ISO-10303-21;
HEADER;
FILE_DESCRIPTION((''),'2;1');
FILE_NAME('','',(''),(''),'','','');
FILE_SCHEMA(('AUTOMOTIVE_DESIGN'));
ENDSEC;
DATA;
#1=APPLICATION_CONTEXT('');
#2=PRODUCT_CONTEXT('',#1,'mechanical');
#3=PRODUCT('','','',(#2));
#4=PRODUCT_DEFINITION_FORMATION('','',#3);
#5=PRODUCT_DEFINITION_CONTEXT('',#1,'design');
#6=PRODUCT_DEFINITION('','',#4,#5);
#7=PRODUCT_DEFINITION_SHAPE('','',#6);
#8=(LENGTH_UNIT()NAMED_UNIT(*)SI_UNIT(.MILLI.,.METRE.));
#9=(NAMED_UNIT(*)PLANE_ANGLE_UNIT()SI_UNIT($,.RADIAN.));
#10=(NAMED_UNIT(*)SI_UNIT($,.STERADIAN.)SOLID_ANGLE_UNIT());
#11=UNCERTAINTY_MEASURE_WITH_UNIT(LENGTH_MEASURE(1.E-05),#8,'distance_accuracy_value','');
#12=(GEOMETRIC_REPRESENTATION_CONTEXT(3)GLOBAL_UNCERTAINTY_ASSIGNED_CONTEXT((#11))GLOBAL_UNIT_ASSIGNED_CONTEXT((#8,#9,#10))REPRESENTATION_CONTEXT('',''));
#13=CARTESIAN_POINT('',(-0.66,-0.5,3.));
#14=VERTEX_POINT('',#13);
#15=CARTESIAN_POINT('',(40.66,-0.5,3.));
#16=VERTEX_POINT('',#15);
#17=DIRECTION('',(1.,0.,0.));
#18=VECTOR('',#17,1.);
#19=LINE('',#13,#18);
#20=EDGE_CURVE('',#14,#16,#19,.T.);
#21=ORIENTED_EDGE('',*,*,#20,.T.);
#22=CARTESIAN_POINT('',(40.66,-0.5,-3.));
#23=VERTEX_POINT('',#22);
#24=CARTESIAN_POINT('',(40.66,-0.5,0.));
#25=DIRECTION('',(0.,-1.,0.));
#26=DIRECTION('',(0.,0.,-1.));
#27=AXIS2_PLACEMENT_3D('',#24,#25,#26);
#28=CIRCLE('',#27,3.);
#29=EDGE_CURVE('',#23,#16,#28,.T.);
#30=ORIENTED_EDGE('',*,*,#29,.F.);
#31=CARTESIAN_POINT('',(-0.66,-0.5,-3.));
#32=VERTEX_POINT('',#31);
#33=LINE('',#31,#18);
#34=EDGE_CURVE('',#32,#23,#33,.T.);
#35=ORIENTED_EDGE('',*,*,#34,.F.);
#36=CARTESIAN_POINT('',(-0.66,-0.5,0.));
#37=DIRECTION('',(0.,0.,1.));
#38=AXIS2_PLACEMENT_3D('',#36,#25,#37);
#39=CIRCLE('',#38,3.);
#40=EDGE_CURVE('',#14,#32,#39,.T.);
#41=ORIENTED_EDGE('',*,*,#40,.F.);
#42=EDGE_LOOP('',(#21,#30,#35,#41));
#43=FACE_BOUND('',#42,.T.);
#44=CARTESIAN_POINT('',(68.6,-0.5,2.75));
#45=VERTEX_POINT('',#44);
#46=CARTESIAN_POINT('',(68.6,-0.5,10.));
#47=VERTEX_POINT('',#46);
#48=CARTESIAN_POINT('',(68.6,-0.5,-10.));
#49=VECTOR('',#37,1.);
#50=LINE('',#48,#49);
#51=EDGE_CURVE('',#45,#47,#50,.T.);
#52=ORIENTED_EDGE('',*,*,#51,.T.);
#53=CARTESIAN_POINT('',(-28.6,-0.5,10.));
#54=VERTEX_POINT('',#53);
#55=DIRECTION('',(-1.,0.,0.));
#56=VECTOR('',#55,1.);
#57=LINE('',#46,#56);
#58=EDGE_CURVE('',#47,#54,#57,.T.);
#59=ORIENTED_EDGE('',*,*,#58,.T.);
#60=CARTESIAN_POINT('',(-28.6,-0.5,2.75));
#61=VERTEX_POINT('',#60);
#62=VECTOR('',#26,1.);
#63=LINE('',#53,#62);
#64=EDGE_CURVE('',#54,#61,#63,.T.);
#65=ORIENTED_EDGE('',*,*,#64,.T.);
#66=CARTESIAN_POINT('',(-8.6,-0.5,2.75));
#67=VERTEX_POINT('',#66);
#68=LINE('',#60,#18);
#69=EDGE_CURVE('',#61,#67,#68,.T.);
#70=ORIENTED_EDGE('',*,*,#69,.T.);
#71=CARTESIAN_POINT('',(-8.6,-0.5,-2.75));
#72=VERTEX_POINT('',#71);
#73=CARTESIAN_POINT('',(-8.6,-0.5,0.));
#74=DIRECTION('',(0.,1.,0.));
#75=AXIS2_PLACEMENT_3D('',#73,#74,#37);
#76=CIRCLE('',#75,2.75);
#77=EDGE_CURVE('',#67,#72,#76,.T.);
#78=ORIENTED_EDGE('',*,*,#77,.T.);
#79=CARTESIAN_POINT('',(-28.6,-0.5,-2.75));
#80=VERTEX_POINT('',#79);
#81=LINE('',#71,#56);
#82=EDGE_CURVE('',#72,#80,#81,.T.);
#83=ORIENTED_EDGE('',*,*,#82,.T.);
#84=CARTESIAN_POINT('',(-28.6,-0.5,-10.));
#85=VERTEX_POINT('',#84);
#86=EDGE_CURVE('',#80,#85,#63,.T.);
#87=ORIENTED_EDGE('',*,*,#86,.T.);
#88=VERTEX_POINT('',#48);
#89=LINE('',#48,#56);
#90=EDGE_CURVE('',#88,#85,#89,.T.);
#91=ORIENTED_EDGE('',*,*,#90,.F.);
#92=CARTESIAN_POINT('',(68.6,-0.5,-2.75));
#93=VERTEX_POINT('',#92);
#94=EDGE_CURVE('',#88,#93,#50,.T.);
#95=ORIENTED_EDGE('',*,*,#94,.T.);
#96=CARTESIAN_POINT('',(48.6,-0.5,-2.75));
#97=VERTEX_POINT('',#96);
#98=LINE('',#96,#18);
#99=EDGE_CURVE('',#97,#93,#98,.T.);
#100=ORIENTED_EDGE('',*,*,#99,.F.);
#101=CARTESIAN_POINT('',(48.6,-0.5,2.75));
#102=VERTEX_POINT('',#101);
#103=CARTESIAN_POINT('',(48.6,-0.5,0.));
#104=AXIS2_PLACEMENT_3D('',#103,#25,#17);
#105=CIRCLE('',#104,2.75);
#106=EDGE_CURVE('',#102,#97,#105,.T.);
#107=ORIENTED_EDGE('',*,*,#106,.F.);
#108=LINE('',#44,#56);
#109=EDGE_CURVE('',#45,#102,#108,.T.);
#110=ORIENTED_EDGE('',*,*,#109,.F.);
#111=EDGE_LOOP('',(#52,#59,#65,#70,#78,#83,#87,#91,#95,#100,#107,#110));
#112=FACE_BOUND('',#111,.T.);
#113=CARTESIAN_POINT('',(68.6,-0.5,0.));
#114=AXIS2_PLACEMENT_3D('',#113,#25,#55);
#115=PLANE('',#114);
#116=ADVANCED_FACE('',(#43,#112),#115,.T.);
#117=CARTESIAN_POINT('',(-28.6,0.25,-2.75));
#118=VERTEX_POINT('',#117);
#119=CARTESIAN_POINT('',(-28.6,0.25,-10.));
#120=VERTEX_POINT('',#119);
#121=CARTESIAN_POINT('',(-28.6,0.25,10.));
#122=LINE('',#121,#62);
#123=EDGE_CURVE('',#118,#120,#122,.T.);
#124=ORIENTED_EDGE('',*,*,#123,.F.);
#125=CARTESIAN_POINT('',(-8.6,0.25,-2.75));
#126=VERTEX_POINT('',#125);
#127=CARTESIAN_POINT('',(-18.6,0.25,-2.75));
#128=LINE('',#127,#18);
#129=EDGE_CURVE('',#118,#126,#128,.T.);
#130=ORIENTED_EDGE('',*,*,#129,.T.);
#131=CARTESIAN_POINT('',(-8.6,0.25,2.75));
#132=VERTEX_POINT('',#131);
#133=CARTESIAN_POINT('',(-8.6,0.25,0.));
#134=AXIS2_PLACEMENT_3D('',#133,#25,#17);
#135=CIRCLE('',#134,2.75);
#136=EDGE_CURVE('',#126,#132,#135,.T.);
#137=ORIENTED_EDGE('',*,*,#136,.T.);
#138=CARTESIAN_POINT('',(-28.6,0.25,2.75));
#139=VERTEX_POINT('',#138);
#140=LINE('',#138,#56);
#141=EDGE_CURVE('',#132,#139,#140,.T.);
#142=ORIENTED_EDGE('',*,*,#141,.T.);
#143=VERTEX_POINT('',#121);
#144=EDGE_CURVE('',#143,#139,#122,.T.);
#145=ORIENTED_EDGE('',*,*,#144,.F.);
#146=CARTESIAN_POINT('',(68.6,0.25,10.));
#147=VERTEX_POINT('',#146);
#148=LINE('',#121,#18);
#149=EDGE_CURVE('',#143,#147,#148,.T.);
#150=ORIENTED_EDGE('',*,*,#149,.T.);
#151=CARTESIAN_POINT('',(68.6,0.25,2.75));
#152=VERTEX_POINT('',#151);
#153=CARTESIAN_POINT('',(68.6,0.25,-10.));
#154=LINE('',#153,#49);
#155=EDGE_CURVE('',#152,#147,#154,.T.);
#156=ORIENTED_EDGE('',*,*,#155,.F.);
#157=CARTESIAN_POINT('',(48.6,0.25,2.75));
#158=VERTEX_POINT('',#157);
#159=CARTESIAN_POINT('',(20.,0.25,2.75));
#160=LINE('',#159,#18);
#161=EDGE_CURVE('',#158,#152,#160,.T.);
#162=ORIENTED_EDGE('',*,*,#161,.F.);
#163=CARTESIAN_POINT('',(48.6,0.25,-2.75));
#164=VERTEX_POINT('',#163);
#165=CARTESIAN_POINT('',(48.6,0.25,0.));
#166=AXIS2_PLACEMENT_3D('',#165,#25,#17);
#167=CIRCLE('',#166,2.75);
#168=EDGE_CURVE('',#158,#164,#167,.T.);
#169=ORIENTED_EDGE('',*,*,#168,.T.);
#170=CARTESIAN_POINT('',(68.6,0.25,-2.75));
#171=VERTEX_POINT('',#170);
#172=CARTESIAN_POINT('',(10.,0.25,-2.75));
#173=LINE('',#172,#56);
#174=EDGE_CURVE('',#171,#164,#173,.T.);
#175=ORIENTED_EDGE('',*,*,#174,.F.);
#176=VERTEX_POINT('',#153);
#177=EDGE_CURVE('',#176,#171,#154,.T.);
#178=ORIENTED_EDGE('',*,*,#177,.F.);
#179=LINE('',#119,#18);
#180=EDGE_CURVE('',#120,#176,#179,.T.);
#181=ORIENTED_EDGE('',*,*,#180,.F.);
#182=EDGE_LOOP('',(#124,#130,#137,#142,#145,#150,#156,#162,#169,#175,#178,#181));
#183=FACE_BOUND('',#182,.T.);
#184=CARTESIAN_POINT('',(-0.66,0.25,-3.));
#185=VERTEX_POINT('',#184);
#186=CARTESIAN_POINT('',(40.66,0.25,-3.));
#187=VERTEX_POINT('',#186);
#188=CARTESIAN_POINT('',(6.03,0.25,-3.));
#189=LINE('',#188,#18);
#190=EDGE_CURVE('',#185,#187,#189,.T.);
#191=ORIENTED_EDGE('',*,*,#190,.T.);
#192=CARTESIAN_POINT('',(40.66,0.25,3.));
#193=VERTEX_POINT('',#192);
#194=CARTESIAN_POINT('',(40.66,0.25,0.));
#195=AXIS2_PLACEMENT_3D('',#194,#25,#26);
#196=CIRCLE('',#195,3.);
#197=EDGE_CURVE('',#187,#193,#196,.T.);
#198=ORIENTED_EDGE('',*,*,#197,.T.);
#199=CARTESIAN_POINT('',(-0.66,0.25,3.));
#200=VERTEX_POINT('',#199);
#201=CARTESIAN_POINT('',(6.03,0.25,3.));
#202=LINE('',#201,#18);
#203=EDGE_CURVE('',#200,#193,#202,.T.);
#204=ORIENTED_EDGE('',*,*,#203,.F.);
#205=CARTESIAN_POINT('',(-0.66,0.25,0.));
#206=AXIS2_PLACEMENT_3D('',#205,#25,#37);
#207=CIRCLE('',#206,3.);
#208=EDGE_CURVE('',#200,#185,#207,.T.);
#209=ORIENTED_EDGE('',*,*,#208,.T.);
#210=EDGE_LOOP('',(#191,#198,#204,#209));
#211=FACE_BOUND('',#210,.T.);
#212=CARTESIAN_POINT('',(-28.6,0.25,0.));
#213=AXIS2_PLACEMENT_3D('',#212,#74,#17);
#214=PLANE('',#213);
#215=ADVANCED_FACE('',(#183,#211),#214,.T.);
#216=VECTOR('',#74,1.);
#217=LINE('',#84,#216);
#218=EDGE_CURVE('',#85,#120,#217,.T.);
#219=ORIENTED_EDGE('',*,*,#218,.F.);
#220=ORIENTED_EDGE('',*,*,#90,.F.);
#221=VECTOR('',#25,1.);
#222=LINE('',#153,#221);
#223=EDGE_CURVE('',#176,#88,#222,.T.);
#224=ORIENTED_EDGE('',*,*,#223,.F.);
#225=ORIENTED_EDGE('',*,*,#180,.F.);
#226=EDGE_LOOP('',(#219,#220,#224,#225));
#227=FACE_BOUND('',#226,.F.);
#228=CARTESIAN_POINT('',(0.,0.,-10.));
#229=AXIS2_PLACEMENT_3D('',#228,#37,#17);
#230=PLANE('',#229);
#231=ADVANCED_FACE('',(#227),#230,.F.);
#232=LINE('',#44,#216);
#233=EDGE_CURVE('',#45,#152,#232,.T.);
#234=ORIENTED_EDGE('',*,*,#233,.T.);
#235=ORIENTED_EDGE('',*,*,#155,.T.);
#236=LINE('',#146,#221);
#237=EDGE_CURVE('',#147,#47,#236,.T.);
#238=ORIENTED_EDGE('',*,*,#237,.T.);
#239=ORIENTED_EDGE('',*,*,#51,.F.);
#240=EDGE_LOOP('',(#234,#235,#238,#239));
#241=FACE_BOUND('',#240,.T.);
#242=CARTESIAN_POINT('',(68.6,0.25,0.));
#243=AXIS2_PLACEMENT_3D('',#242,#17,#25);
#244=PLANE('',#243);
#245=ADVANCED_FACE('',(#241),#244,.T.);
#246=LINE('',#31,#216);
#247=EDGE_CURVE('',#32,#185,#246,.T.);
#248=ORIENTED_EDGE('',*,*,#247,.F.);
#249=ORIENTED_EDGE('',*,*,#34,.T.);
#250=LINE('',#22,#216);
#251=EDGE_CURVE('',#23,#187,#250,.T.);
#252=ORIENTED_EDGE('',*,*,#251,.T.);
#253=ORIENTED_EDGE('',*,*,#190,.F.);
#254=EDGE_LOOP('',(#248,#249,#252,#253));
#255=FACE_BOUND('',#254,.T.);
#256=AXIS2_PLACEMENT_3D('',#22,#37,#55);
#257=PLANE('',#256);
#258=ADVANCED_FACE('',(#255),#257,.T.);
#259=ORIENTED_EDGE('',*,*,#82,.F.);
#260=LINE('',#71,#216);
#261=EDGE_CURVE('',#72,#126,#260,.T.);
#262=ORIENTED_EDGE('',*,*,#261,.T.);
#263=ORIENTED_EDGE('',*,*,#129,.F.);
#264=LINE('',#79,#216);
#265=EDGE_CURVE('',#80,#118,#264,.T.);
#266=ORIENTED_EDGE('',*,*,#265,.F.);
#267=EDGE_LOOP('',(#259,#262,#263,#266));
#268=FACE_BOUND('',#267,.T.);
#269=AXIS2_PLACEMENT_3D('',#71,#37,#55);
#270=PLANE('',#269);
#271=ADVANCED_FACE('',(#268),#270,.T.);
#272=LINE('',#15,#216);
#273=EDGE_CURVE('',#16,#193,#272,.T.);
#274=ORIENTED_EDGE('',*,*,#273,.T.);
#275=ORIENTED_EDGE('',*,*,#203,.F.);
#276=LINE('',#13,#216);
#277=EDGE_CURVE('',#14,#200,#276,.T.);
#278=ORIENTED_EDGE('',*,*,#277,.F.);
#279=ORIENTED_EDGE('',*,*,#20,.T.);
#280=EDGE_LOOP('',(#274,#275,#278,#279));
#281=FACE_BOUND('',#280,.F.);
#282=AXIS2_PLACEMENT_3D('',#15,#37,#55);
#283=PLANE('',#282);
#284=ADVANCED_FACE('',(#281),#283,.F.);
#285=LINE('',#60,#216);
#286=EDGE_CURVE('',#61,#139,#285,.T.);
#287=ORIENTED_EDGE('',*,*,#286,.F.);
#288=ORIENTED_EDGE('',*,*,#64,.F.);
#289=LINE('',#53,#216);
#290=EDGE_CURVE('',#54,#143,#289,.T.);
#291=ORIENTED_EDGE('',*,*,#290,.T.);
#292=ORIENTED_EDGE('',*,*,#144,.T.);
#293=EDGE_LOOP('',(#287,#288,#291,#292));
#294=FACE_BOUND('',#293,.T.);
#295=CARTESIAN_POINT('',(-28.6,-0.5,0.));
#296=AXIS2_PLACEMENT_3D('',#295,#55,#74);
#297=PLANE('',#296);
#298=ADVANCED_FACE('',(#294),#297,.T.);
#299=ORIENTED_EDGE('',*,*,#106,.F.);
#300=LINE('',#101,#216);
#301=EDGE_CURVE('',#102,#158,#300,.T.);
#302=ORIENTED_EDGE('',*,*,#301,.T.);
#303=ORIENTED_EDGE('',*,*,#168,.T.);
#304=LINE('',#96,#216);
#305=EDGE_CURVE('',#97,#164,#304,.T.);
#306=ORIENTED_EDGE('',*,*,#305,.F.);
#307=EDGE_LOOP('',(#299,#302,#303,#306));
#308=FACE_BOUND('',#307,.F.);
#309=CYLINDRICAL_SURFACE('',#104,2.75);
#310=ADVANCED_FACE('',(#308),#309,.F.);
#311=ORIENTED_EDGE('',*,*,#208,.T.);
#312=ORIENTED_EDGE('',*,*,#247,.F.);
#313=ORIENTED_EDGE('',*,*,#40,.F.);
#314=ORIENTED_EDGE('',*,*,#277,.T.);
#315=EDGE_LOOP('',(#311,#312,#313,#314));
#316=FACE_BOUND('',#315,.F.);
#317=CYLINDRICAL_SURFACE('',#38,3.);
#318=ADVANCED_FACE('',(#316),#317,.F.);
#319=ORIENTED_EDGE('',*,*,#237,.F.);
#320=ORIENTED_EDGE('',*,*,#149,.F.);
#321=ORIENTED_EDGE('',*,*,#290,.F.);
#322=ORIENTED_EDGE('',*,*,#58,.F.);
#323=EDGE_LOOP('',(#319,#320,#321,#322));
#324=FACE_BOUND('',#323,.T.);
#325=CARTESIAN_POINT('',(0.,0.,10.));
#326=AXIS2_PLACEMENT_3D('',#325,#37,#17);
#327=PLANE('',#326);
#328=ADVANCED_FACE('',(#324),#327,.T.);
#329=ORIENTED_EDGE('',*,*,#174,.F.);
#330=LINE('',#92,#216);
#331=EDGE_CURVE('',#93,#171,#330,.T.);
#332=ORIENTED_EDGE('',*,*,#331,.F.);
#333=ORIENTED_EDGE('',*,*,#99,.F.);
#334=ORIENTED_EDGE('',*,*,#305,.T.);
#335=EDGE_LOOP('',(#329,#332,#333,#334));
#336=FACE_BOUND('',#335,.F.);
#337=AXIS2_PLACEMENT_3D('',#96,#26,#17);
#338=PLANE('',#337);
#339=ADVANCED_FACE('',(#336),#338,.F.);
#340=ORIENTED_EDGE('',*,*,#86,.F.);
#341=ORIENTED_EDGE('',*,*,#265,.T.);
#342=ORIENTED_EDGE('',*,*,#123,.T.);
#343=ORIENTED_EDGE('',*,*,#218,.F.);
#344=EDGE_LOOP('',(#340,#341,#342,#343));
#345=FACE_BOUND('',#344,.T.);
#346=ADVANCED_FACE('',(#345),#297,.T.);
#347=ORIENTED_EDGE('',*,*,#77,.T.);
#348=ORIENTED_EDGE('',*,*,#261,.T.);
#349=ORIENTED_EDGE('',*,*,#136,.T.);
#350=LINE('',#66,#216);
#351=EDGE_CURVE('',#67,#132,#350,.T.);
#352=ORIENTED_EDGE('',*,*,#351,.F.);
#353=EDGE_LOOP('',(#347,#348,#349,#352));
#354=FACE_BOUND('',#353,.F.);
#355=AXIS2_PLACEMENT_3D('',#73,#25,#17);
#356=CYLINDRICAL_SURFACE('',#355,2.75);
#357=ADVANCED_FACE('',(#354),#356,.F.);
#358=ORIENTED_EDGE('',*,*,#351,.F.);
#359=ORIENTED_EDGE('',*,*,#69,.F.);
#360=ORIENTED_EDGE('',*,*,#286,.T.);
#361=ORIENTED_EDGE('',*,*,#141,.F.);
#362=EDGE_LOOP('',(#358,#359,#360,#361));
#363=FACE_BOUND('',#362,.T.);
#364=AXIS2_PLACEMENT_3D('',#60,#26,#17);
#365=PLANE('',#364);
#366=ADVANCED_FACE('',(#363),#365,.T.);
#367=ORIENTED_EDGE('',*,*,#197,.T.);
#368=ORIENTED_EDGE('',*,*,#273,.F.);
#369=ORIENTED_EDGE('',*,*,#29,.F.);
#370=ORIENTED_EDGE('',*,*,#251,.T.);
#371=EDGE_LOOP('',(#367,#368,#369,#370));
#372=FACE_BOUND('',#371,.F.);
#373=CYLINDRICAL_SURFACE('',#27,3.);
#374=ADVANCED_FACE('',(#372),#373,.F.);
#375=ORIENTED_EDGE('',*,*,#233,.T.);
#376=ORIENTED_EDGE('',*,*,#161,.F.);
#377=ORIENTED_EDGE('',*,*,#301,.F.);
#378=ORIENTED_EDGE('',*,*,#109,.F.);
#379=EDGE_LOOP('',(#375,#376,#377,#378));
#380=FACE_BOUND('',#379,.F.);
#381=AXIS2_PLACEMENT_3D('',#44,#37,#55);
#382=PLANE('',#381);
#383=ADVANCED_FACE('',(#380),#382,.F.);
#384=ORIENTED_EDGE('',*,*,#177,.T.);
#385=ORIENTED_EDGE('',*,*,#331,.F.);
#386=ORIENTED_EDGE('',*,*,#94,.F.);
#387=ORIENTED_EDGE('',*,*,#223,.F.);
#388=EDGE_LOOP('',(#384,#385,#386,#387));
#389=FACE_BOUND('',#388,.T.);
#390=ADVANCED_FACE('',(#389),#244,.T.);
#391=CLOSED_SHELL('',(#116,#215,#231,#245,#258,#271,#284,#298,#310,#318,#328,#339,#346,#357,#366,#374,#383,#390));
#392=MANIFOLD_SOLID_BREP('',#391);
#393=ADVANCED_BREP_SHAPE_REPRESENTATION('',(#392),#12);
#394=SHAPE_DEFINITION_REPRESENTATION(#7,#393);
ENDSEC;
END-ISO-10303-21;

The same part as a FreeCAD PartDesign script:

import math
import FreeCAD as App
import Part
import Sketcher

V = App.Vector
Q = App.Units.Quantity

doc = App.newDocument("Part")
body = doc.addObject("PartDesign::Body", "Body")

# Sketch on XY plane
sketch1 = doc.addObject("Sketcher::SketchObject", "Sketch")
body.addObject(sketch1)
sketch1.AttachmentSupport = (doc.XY_Plane, [""])
sketch1.MapMode = "FlatFace"
sketch1.addGeometry(Part.LineSegment(V(-28.6, -0.5, 0), V(68.6, -0.5, 0)), False)
sketch1.addGeometry(Part.LineSegment(V(68.6, -0.5, 0), V(68.6, 0.2, 0)), False)
sketch1.addGeometry(Part.LineSegment(V(68.6, 0.2, 0), V(-28.6, 0.2, 0)), False)
sketch1.addGeometry(Part.LineSegment(V(-28.6, 0.2, 0), V(-28.6, -0.5, 0)), False)
sketch1.addConstraint(Sketcher.Constraint("Coincident", 0, 2, 1, 1))
sketch1.addConstraint(Sketcher.Constraint("Coincident", 1, 2, 2, 1))
sketch1.addConstraint(Sketcher.Constraint("Coincident", 2, 2, 3, 1))
sketch1.addConstraint(Sketcher.Constraint("Coincident", 3, 2, 0, 1))
sketch1.addConstraint(Sketcher.Constraint("Horizontal", 0))
sketch1.addConstraint(Sketcher.Constraint("Vertical", 1))
sketch1.addConstraint(Sketcher.Constraint("Horizontal", 2))
sketch1.addConstraint(Sketcher.Constraint("Vertical", 3))
sketch1.addConstraint(Sketcher.Constraint("DistanceX", 0, 1, 0, 2, Q("97.2 mm")))
sketch1.addConstraint(Sketcher.Constraint("DistanceY", 1, 1, 1, 2, Q("0.75 mm")))
sketch1.addConstraint(Sketcher.Constraint("DistanceX", -1, 1, 0, 2, Q("68.6 mm")))
sketch1.addConstraint(Sketcher.Constraint("DistanceY", 0, 2, -1, 1, Q("0.5 mm")))
pad1 = doc.addObject("PartDesign::Pad", "Pad")
body.addObject(pad1)
pad1.Profile = sketch1
pad1.Length = 20
pad1.Midplane = True

# Sketch on XZ plane
sketch2 = doc.addObject("Sketcher::SketchObject", "Sketch001")
body.addObject(sketch2)
sketch2.AttachmentSupport = (doc.XZ_Plane, [""])
sketch2.MapMode = "FlatFace"
sketch2.AttachmentOffset = App.Placement(V(0, 0, 0.5), App.Rotation())
sketch2.addGeometry(Part.LineSegment(V(48.6, -2.8, 0), V(68.6, -2.8, 0)), False)
sketch2.addGeometry(Part.LineSegment(V(68.6, -2.8, 0), V(68.6, 2.8, 0)), False)
sketch2.addGeometry(Part.LineSegment(V(68.6, 2.8, 0), V(48.6, 2.8, 0)), False)
sketch2.addGeometry(Part.ArcOfCircle(Part.Circle(V(48.6, 0, 0), V(0, 0, 1), 2.8), math.radians(90), math.radians(270)), False)
sketch2.addGeometry(Part.LineSegment(V(40.7, 3, 0), V(-0.7, 3, 0)), False)
sketch2.addGeometry(Part.ArcOfCircle(Part.Circle(V(-0.7, 0, 0), V(0, 0, 1), 3), math.radians(90), math.radians(270)), False)
sketch2.addGeometry(Part.LineSegment(V(-0.7, -3, 0), V(40.7, -3, 0)), False)
sketch2.addGeometry(Part.ArcOfCircle(Part.Circle(V(40.7, 0, 0), V(0, 0, 1), 3), math.radians(-90), math.radians(90)), False)
sketch2.addGeometry(Part.LineSegment(V(-8.6, 2.8, 0), V(-28.6, 2.8, 0)), False)
sketch2.addGeometry(Part.LineSegment(V(-28.6, 2.8, 0), V(-28.6, -2.8, 0)), False)
sketch2.addGeometry(Part.LineSegment(V(-28.6, -2.8, 0), V(-8.6, -2.8, 0)), False)
sketch2.addGeometry(Part.ArcOfCircle(Part.Circle(V(-8.6, 0, 0), V(0, 0, 1), 2.8), math.radians(-90), math.radians(90)), False)
sketch2.addConstraint(Sketcher.Constraint("Coincident", 0, 2, 1, 1))
sketch2.addConstraint(Sketcher.Constraint("Coincident", 1, 2, 2, 1))
sketch2.addConstraint(Sketcher.Constraint("Tangent", 2, 2, 3, 1))
sketch2.addConstraint(Sketcher.Constraint("Tangent", 3, 2, 0, 1))
sketch2.addConstraint(Sketcher.Constraint("Tangent", 4, 2, 5, 1))
sketch2.addConstraint(Sketcher.Constraint("Tangent", 5, 2, 6, 1))
sketch2.addConstraint(Sketcher.Constraint("Tangent", 6, 2, 7, 1))
sketch2.addConstraint(Sketcher.Constraint("Tangent", 7, 2, 4, 1))
sketch2.addConstraint(Sketcher.Constraint("Coincident", 8, 2, 9, 1))
sketch2.addConstraint(Sketcher.Constraint("Coincident", 9, 2, 10, 1))
sketch2.addConstraint(Sketcher.Constraint("Tangent", 10, 2, 11, 1))
sketch2.addConstraint(Sketcher.Constraint("Tangent", 11, 2, 8, 1))
sketch2.addConstraint(Sketcher.Constraint("Horizontal", 0))
sketch2.addConstraint(Sketcher.Constraint("Vertical", 1))
sketch2.addConstraint(Sketcher.Constraint("Horizontal", 2))
sketch2.addConstraint(Sketcher.Constraint("Horizontal", 4))
sketch2.addConstraint(Sketcher.Constraint("Horizontal", 6))
sketch2.addConstraint(Sketcher.Constraint("Horizontal", 8))
sketch2.addConstraint(Sketcher.Constraint("Vertical", 9))
sketch2.addConstraint(Sketcher.Constraint("Horizontal", 10))
sketch2.addConstraint(Sketcher.Constraint("Equal", 3, 11))
sketch2.addConstraint(Sketcher.Constraint("PointOnObject", 3, 3, -1))
sketch2.addConstraint(Sketcher.Constraint("PointOnObject", 5, 3, -1))
sketch2.addConstraint(Sketcher.Constraint("PointOnObject", 11, 3, -1))
sketch2.addConstraint(Sketcher.Constraint("Equal", 2, 8))
sketch2.addConstraint(Sketcher.Constraint("Radius", 5, Q("3 mm")))
sketch2.addConstraint(Sketcher.Constraint("DistanceX", 0, 1, 0, 2, Q("20 mm")))
sketch2.addConstraint(Sketcher.Constraint("Radius", 3, Q("2.75 mm")))
sketch2.addConstraint(Sketcher.Constraint("DistanceX", 7, 3, 0, 2, Q("27.94 mm")))
sketch2.addConstraint(Sketcher.Constraint("DistanceX", 8, 2, 4, 2, Q("27.94 mm")))
sketch2.addConstraint(Sketcher.Constraint("DistanceX", 4, 2, 4, 1, Q("41.32 mm")))
sketch2.addConstraint(Sketcher.Constraint("DistanceX", -1, 1, 3, 3, Q("48.6 mm")))
pocket1 = doc.addObject("PartDesign::Pocket", "Pocket")
body.addObject(pocket1)
pocket1.Profile = sketch2
pocket1.Length = 20

doc.recompute()
